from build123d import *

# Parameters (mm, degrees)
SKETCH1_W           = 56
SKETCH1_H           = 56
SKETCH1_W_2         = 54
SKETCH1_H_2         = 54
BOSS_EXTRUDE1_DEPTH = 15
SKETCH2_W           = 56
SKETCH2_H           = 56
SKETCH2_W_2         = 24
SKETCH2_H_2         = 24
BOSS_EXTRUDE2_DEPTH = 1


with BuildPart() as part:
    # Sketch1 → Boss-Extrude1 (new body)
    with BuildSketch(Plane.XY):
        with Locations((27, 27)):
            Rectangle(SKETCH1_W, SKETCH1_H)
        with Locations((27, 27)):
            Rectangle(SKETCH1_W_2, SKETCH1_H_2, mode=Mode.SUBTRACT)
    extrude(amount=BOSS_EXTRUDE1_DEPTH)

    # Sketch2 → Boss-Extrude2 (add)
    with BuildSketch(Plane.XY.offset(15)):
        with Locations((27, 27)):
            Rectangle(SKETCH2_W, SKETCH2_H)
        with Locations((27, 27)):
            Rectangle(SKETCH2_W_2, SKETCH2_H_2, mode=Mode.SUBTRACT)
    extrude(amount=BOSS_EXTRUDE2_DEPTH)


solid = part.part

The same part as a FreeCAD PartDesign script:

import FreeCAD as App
import Part
import Sketcher

doc = App.newDocument("Part")
body = doc.addObject("PartDesign::Body", "Body")

# Sketch on XY plane
sketch1 = body.newObject("Sketcher::SketchObject", "Sketch")
sketch1.AttachmentSupport = (doc.getObject("XY_Plane"), [""])
sketch1.MapMode = "FlatFace"
sketch1.addGeometry(Part.LineSegment(App.Vector(-1, 55, 0), App.Vector(-1, -1, 0)), False)
sketch1.addGeometry(Part.LineSegment(App.Vector(-1, -1, 0), App.Vector(55, -1, 0)), False)
sketch1.addGeometry(Part.LineSegment(App.Vector(55, -1, 0), App.Vector(55, 55, 0)), False)
sketch1.addGeometry(Part.LineSegment(App.Vector(55, 55, 0), App.Vector(-1, 55, 0)), False)
sketch1.addGeometry(Part.LineSegment(App.Vector(54, 0, 0), App.Vector(0, 0, 0)), False)
sketch1.addGeometry(Part.LineSegment(App.Vector(0, 0, 0), App.Vector(0, 54, 0)), False)
sketch1.addGeometry(Part.LineSegment(App.Vector(0, 54, 0), App.Vector(54, 54, 0)), False)
sketch1.addGeometry(Part.LineSegment(App.Vector(54, 54, 0), App.Vector(54, 0, 0)), False)
sketch1.addConstraint(Sketcher.Constraint("Coincident", 0, 2, 1, 1))
sketch1.addConstraint(Sketcher.Constraint("Coincident", 1, 2, 2, 1))
sketch1.addConstraint(Sketcher.Constraint("Coincident", 2, 2, 3, 1))
sketch1.addConstraint(Sketcher.Constraint("Coincident", 3, 2, 0, 1))
sketch1.addConstraint(Sketcher.Constraint("Coincident", 4, 2, 5, 1))
sketch1.addConstraint(Sketcher.Constraint("Coincident", 5, 2, 6, 1))
sketch1.addConstraint(Sketcher.Constraint("Coincident", 6, 2, 7, 1))
sketch1.addConstraint(Sketcher.Constraint("Coincident", 7, 2, 4, 1))
sketch1.addConstraint(Sketcher.Constraint("Vertical", 0))
sketch1.addConstraint(Sketcher.Constraint("Horizontal", 1))
sketch1.addConstraint(Sketcher.Constraint("Vertical", 2))
sketch1.addConstraint(Sketcher.Constraint("Horizontal", 3))
sketch1.addConstraint(Sketcher.Constraint("Horizontal", 4))
sketch1.addConstraint(Sketcher.Constraint("Vertical", 5))
sketch1.addConstraint(Sketcher.Constraint("Horizontal", 6))
sketch1.addConstraint(Sketcher.Constraint("Vertical", 7))
sketch1.addConstraint(Sketcher.Constraint("Coincident", 4, 2, -1, 1))
sketch1.addConstraint(Sketcher.Constraint("Equal", 3, 0))
sketch1.addConstraint(Sketcher.Constraint("Equal", 6, 5))
sketch1.addConstraint(Sketcher.Constraint("DistanceX", 1, 1, 1, 2, 56.0))
sketch1.addConstraint(Sketcher.Constraint("DistanceX", 4, 2, 4, 1, 54.0))
sketch1.addConstraint(Sketcher.Constraint("DistanceX", 0, 2, -1, 1, 1.0))
sketch1.addConstraint(Sketcher.Constraint("DistanceY", 0, 2, -1, 1, 1.0))
pad1 = body.newObject("PartDesign::Pad", "Pad")
pad1.Profile = sketch1
pad1.Length = 15

# Sketch on XY plane
sketch2 = body.newObject("Sketcher::SketchObject", "Sketch001")
sketch2.AttachmentSupport = (doc.getObject("XY_Plane"), [""])
sketch2.MapMode = "FlatFace"
sketch2.AttachmentOffset = App.Placement(App.Vector(0, 0, 15), App.Rotation())
sketch2.addGeometry(Part.LineSegment(App.Vector(-1, 55, 0), App.Vector(-1, -1, 0)), False)
sketch2.addGeometry(Part.LineSegment(App.Vector(-1, -1, 0), App.Vector(55, -1, 0)), False)
sketch2.addGeometry(Part.LineSegment(App.Vector(55, -1, 0), App.Vector(55, 55, 0)), False)
sketch2.addGeometry(Part.LineSegment(App.Vector(55, 55, 0), App.Vector(-1, 55, 0)), False)
sketch2.addGeometry(Part.LineSegment(App.Vector(39, 15, 0), App.Vector(15, 15, 0)), False)
sketch2.addGeometry(Part.LineSegment(App.Vector(15, 15, 0), App.Vector(15, 39, 0)), False)
sketch2.addGeometry(Part.LineSegment(App.Vector(15, 39, 0), App.Vector(39, 39, 0)), False)
sketch2.addGeometry(Part.LineSegment(App.Vector(39, 39, 0), App.Vector(39, 15, 0)), False)
sketch2.addConstraint(Sketcher.Constraint("Coincident", 0, 2, 1, 1))
sketch2.addConstraint(Sketcher.Constraint("Coincident", 1, 2, 2, 1))
sketch2.addConstraint(Sketcher.Constraint("Coincident", 2, 2, 3, 1))
sketch2.addConstraint(Sketcher.Constraint("Coincident", 3, 2, 0, 1))
sketch2.addConstraint(Sketcher.Constraint("Coincident", 4, 2, 5, 1))
sketch2.addConstraint(Sketcher.Constraint("Coincident", 5, 2, 6, 1))
sketch2.addConstraint(Sketcher.Constraint("Coincident", 6, 2, 7, 1))
sketch2.addConstraint(Sketcher.Constraint("Coincident", 7, 2, 4, 1))
sketch2.addConstraint(Sketcher.Constraint("Vertical", 0))
sketch2.addConstraint(Sketcher.Constraint("Horizontal", 1))
sketch2.addConstraint(Sketcher.Constraint("Vertical", 2))
sketch2.addConstraint(Sketcher.Constraint("Horizontal", 3))
sketch2.addConstraint(Sketcher.Constraint("Horizontal", 4))
sketch2.addConstraint(Sketcher.Constraint("Vertical", 5))
sketch2.addConstraint(Sketcher.Constraint("Horizontal", 6))
sketch2.addConstraint(Sketcher.Constraint("Vertical", 7))
sketch2.addConstraint(Sketcher.Constraint("Equal", 3, 0))
sketch2.addConstraint(Sketcher.Constraint("Equal", 6, 5))
sketch2.addConstraint(Sketcher.Constraint("DistanceX", 1, 1, 1, 2, 56.0))
sketch2.addConstraint(Sketcher.Constraint("DistanceX", 4, 2, 4, 1, 24.0))
sketch2.addConstraint(Sketcher.Constraint("DistanceX", 0, 2, -1, 1, 1.0))
sketch2.addConstraint(Sketcher.Constraint("DistanceY", 0, 2, -1, 1, 1.0))
sketch2.addConstraint(Sketcher.Constraint("DistanceX", -1, 1, 4, 2, 15.0))
sketch2.addConstraint(Sketcher.Constraint("DistanceY", -1, 1, 4, 2, 15.0))
pad2 = body.newObject("PartDesign::Pad", "Pad001")
pad2.Profile = sketch2
pad2.Length = 1

doc.recompute()
